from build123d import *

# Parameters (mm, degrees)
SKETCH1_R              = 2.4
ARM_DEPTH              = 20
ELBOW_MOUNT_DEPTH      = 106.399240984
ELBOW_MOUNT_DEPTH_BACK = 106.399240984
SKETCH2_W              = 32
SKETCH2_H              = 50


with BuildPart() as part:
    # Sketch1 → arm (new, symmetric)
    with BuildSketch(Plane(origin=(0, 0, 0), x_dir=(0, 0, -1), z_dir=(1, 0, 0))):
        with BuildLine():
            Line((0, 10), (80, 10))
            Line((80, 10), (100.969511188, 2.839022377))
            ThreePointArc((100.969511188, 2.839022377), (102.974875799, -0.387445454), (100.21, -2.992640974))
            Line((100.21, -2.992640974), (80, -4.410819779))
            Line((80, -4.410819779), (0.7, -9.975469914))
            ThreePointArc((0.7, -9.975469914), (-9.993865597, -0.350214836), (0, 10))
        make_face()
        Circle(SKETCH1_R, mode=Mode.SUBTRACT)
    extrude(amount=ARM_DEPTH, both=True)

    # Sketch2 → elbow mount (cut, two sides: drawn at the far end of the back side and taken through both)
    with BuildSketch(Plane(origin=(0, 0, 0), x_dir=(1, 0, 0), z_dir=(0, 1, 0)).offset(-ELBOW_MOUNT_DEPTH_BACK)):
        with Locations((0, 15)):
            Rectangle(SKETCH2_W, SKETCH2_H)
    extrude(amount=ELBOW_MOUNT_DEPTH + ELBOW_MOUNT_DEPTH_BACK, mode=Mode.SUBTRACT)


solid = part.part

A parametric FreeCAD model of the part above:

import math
import FreeCAD as App
import Part
import Sketcher
Q = App.Units.Quantity


def add_polygon(sketch, points):
    """Adds a closed chain of lines whose ends are joined by coincident constraints."""
    first, n = sketch.GeometryCount, len(points)
    for a, b in zip(points, points[1:] + points[:1]):
        sketch.addGeometry(Part.LineSegment(App.Vector(*a, 0), App.Vector(*b, 0)), False)
    for i in range(n):
        sketch.addConstraint(Sketcher.Constraint("Coincident", first + i, 2, first + (i + 1) % n, 1))

doc = App.newDocument("Part")
body = doc.addObject("PartDesign::Body", "Body")

# Sketch on YZ plane
sketch1 = body.newObject("Sketcher::SketchObject", "Sketch")
sketch1.AttachmentSupport = (doc.getObject("YZ_Plane"), [""])
sketch1.MapMode = "FlatFace"
sketch1.addGeometry(Part.LineSegment(App.Vector(10, -80, 0), App.Vector(10, 0, 0)), False)
sketch1.addGeometry(Part.ArcOfCircle(Part.Circle(App.Vector(0, 0, 0), App.Vector(0, 0, 1), 10), math.radians(0), math.radians(184.013987)), False)
sketch1.addGeometry(Part.LineSegment(App.Vector(-9.97547, -0.7, 0), App.Vector(-4.41082, -80, 0)), False)
sketch1.addGeometry(Part.LineSegment(App.Vector(-4.41082, -80, 0), App.Vector(-2.992641, -100.21, 0)), False)
sketch1.addGeometry(Part.ArcOfCircle(Part.Circle(App.Vector(0, -100, 0), App.Vector(0, 0, 1), 3), math.radians(-175.986013), math.radians(-18.854766)), False)
sketch1.addGeometry(Part.LineSegment(App.Vector(2.839022, -100.969511, 0), App.Vector(10, -80, 0)), False)
sketch1.addGeometry(Part.Circle(App.Vector(0, 0, 0), App.Vector(0, 0, 1), 2.4), False)
sketch1.addConstraint(Sketcher.Constraint("Tangent", 0, 2, 1, 1))
sketch1.addConstraint(Sketcher.Constraint("Tangent", 1, 2, 2, 1))
sketch1.addConstraint(Sketcher.Constraint("Coincident", 2, 2, 3, 1))
sketch1.addConstraint(Sketcher.Constraint("Tangent", 3, 2, 4, 1))
sketch1.addConstraint(Sketcher.Constraint("Tangent", 4, 2, 5, 1))
sketch1.addConstraint(Sketcher.Constraint("Coincident", 5, 2, 0, 1))
sketch1.addConstraint(Sketcher.Constraint("Vertical", 0))
sketch1.addConstraint(Sketcher.Constraint("Coincident", 1, 3, -1, 1))
sketch1.addConstraint(Sketcher.Constraint("Coincident", 6, 3, -1, 1))
sketch1.addConstraint(Sketcher.Constraint("PointOnObject", 4, 3, -2))
sketch1.addConstraint(Sketcher.Constraint("Parallel", 2, 3))
sketch1.addConstraint(Sketcher.Constraint("Horizontal", 2, 2, 5, 2))
sketch1.addConstraint(Sketcher.Constraint("Radius", 1, Q("10 mm")))
sketch1.addConstraint(Sketcher.Constraint("Radius", 4, Q("3 mm")))
sketch1.addConstraint(Sketcher.Constraint("Diameter", 6, Q("4.8 mm")))
sketch1.addConstraint(Sketcher.Constraint("DistanceY", 0, 1, 0, 2, Q("80 mm")))
sketch1.addConstraint(Sketcher.Constraint("DistanceY", 4, 3, -1, 1, Q("100 mm")))
pad1 = body.newObject("PartDesign::Pad", "Pad")
pad1.Profile = sketch1
pad1.Length = 40
pad1.Midplane = True

# Sketch on XZ plane
sketch2 = body.newObject("Sketcher::SketchObject", "Sketch001")
sketch2.AttachmentSupport = (doc.getObject("XZ_Plane"), [""])
sketch2.MapMode = "FlatFace"
add_polygon(sketch2, [(-16, -40), (-16, 10), (16, 10), (16, -40)])  # lines 0-3
sketch2.addConstraint(Sketcher.Constraint("Vertical", 0))
sketch2.addConstraint(Sketcher.Constraint("Horizontal", 1))
sketch2.addConstraint(Sketcher.Constraint("Vertical", 2))
sketch2.addConstraint(Sketcher.Constraint("Horizontal", 3))
sketch2.addConstraint(Sketcher.Constraint("DistanceX", 1, 1, 1, 2, Q("32 mm")))
sketch2.addConstraint(Sketcher.Constraint("DistanceY", 0, 1, 0, 2, Q("50 mm")))
sketch2.addConstraint(Sketcher.Constraint("DistanceX", 0, 2, -1, 1, Q("16 mm")))
sketch2.addConstraint(Sketcher.Constraint("DistanceY", -1, 1, 0, 2, Q("10 mm")))
pocket1 = body.newObject("PartDesign::Pocket", "Pocket")
pocket1.Profile = sketch2
pocket1.Type = "ThroughAll"
pocket1.Midplane = True

doc.recompute()
